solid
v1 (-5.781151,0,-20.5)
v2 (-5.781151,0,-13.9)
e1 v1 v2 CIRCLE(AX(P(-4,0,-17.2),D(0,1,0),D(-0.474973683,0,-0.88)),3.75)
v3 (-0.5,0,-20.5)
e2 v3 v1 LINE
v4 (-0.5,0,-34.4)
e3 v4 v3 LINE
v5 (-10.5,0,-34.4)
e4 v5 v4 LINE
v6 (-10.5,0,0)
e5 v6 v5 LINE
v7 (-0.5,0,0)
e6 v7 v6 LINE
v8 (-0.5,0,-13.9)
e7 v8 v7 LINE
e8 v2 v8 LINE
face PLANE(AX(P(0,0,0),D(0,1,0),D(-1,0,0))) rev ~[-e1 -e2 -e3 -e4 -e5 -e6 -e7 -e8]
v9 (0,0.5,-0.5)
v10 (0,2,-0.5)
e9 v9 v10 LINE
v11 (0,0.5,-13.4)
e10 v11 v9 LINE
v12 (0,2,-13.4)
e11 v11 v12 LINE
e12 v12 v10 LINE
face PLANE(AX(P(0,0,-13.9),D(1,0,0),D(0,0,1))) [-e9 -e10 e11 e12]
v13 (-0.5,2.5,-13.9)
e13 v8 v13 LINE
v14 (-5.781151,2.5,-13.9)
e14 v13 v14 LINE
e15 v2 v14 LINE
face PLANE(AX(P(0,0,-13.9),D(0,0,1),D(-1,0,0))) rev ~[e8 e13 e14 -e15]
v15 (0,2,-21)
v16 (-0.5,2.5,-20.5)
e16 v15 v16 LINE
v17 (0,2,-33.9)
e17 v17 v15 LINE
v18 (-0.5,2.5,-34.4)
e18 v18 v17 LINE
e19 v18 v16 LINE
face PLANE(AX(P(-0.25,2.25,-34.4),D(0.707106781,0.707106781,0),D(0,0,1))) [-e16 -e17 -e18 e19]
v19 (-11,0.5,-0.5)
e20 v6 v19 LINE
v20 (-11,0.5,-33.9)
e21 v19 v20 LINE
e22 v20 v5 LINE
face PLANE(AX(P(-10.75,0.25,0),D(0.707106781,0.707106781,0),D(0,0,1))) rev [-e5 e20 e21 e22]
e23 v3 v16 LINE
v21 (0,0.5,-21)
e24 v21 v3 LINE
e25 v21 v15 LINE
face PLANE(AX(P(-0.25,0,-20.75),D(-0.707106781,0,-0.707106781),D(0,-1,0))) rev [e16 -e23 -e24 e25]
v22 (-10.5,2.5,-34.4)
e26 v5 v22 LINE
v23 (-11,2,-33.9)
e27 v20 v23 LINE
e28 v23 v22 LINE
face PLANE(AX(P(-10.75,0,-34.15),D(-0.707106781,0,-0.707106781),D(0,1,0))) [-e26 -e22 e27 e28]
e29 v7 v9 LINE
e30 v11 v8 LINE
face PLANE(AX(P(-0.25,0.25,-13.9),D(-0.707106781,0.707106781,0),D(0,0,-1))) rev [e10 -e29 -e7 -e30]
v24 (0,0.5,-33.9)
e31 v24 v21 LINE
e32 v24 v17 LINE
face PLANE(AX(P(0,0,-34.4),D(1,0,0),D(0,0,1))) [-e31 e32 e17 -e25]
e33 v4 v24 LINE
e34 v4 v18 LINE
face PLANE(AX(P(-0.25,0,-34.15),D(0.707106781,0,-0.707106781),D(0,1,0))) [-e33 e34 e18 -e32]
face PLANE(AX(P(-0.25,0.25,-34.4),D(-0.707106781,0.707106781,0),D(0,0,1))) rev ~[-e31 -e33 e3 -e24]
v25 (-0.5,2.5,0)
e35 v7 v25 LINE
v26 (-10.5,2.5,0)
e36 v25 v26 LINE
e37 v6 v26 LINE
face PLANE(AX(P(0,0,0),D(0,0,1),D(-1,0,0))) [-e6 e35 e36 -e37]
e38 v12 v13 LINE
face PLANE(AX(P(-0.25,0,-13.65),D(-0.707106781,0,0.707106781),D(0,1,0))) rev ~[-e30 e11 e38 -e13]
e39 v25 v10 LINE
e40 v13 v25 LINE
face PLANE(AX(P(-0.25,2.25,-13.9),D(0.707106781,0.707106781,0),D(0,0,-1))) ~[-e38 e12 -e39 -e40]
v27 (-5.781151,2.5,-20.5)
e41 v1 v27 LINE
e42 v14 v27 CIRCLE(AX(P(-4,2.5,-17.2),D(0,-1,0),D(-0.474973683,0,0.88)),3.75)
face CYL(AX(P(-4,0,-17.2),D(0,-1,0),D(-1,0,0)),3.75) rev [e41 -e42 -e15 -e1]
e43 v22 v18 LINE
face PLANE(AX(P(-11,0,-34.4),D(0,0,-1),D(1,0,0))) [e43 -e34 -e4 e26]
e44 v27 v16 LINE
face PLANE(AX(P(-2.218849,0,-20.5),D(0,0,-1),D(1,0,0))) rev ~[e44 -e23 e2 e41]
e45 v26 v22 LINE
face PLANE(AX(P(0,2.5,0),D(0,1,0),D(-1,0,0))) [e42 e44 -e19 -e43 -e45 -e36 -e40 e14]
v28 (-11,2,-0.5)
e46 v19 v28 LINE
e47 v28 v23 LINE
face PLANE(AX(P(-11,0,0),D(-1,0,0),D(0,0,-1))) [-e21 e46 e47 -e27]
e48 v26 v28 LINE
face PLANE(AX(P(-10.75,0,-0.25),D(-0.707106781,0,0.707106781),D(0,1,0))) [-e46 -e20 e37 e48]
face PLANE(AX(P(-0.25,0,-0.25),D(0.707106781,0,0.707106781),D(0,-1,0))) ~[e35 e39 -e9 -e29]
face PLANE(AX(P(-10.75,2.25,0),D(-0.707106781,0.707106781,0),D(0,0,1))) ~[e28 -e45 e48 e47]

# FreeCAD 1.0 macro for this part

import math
import FreeCAD as App
import Part
import Sketcher

V = App.Vector
Q = App.Units.Quantity


def edges_at(feature, points):
    """Names of the edges that pass closest to the given points."""
    edges = feature.Shape.Edges
    near = lambda p: min(range(len(edges)), key=lambda i: edges[i].distToShape(Part.Vertex(*p))[0])
    return sorted({f"Edge{near(p) + 1}" for p in points})

doc = App.newDocument("Part")
body = doc.addObject("PartDesign::Body", "Body")

sketch1 = body.newObject("Sketcher::SketchObject", "Sketch")
sketch1.AttachmentSupport = (doc.getObject("XZ_Plane"), [""])
sketch1.MapMode = "FlatFace"
sketch1.addGeometry([
    Part.LineSegment(V(-11, 0, 0), V(0, 0, 0)),
    Part.LineSegment(V(0, 0, 0), V(0, -13.9, 0)),
    Part.LineSegment(V(0, -13.9, 0), V(-5.8, -13.9, 0)),
    Part.ArcOfCircle(Part.Circle(V(-4, -17.2, 0), V(0, 0, 1), 3.8), math.radians(118), math.radians(242)),
    Part.LineSegment(V(-5.8, -20.5, 0), V(0, -20.5, 0)),
    Part.LineSegment(V(0, -20.5, 0), V(0, -34.4, 0)),
    Part.LineSegment(V(0, -34.4, 0), V(-11, -34.4, 0)),
    Part.LineSegment(V(-11, -34.4, 0), V(-11, 0, 0)),
], False)
sketch1.addConstraint([
    Sketcher.Constraint("Coincident", 0, 2, 1, 1),
    Sketcher.Constraint("Coincident", 1, 2, 2, 1),
    Sketcher.Constraint("Coincident", 2, 2, 3, 1),
    Sketcher.Constraint("Coincident", 3, 2, 4, 1),
    Sketcher.Constraint("Coincident", 4, 2, 5, 1),
    Sketcher.Constraint("Coincident", 5, 2, 6, 1),
    Sketcher.Constraint("Coincident", 6, 2, 7, 1),
    Sketcher.Constraint("Coincident", 7, 2, 0, 1),
    Sketcher.Constraint("Horizontal", 0),
    Sketcher.Constraint("Vertical", 1),
    Sketcher.Constraint("Horizontal", 2),
    Sketcher.Constraint("Horizontal", 4),
    Sketcher.Constraint("Vertical", 5),
    Sketcher.Constraint("Horizontal", 6),
    Sketcher.Constraint("Vertical", 7),
    Sketcher.Constraint("Coincident", 0, 2, -1, 1),
    Sketcher.Constraint("PointOnObject", 4, 2, -2),
    Sketcher.Constraint("Vertical", 2, 2, 3, 2),
    Sketcher.Constraint("Equal", 1, 5),
    Sketcher.Constraint("DistanceX", 0, 1, 0, 2, Q("11 mm")),
    Sketcher.Constraint("Radius", 3, Q("3.75 mm")),
    Sketcher.Constraint("DistanceY", 7, 1, 7, 2, Q("34.4 mm")),
    Sketcher.Constraint("DistanceX", 6, 2, 3, 3, Q("7 mm")),
    Sketcher.Constraint("DistanceY", 3, 2, 2, 2, Q("6.6 mm")),
])
pad1 = body.newObject("PartDesign::Pad", "Pad")
pad1.Profile = sketch1
pad1.Length = 2.5
pad1.Reversed = True
doc.recompute()

chamfer = body.newObject("PartDesign::Chamfer", "Chamfer")
chamfer.Base = (pad1, edges_at(pad1, [
    (-11, 1.25, 0),
    (0, 1.25, 0),
    (0, 1.25, -34.4),
    (-11, 1.25, -34.4),
    (0, 1.25, -20.5),
    (0, 1.25, -13.9),
    (-11, 2.5, -17.2),
    (-11, 0, -17.2),
    (0, 2.5, -6.95),
    (0, 0, -6.95),
    (0, 2.5, -27.45),
    (0, 0, -27.45),
]))
chamfer.Size = 0.5

doc.recompute()
